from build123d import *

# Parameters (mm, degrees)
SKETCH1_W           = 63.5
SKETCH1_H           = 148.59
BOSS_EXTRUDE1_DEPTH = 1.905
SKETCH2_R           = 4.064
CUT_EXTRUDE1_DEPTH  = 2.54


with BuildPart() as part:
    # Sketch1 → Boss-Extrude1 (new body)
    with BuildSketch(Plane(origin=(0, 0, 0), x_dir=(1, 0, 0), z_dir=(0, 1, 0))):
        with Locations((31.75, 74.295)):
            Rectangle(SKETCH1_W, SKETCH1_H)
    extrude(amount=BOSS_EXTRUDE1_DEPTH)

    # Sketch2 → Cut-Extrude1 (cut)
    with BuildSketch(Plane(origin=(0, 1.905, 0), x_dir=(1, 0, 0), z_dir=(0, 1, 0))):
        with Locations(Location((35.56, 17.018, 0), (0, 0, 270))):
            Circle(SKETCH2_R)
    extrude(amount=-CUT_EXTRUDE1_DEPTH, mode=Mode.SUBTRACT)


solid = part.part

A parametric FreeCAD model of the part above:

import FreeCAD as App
import Part
import Sketcher

V = App.Vector
Q = App.Units.Quantity

doc = App.newDocument("Part")
body = doc.addObject("PartDesign::Body", "Body")

# Sketch on XZ plane
sketch1 = body.newObject("Sketcher::SketchObject", "Sketch")
sketch1.AttachmentSupport = (doc.getObject("XZ_Plane"), [""])
sketch1.MapMode = "FlatFace"
sketch1.addGeometry(Part.LineSegment(V(0, -149, 0), V(0, 0, 0)), False)
sketch1.addGeometry(Part.LineSegment(V(0, 0, 0), V(64, 0, 0)), False)
sketch1.addGeometry(Part.LineSegment(V(64, 0, 0), V(64, -149, 0)), False)
sketch1.addGeometry(Part.LineSegment(V(64, -149, 0), V(0, -149, 0)), False)
sketch1.addConstraint(Sketcher.Constraint("Coincident", 0, 2, 1, 1))
sketch1.addConstraint(Sketcher.Constraint("Coincident", 1, 2, 2, 1))
sketch1.addConstraint(Sketcher.Constraint("Coincident", 2, 2, 3, 1))
sketch1.addConstraint(Sketcher.Constraint("Coincident", 3, 2, 0, 1))
sketch1.addConstraint(Sketcher.Constraint("Vertical", 0))
sketch1.addConstraint(Sketcher.Constraint("Horizontal", 1))
sketch1.addConstraint(Sketcher.Constraint("Vertical", 2))
sketch1.addConstraint(Sketcher.Constraint("Horizontal", 3))
sketch1.addConstraint(Sketcher.Constraint("Coincident", 0, 2, -1, 1))
sketch1.addConstraint(Sketcher.Constraint("DistanceX", 1, 1, 1, 2, Q("2.5 in")))
sketch1.addConstraint(Sketcher.Constraint("DistanceY", 0, 1, 0, 2, Q("5.85 in")))
pad1 = body.newObject("PartDesign::Pad", "Pad")
pad1.Profile = sketch1
pad1.Length = Q("0.075 in")
pad1.Reversed = True

# Sketch on XZ plane
sketch2 = body.newObject("Sketcher::SketchObject", "Sketch001")
sketch2.AttachmentSupport = (doc.getObject("XZ_Plane"), [""])
sketch2.MapMode = "FlatFace"
sketch2.AttachmentOffset = App.Placement(V(0, 0, -0.075 * 25.4), App.Rotation())
sketch2.addGeometry(Part.Circle(V(35.6, -17, 0), V(0, 0, 1), 4.1), False)
sketch2.addConstraint(Sketcher.Constraint("Diameter", 0, Q("0.32 in")))
sketch2.addConstraint(Sketcher.Constraint("DistanceX", -1, 1, 0, 3, Q("1.4 in")))
sketch2.addConstraint(Sketcher.Constraint("DistanceY", 0, 3, -1, 1, Q("0.67 in")))
pocket1 = body.newObject("PartDesign::Pocket", "Pocket")
pocket1.Profile = sketch2
pocket1.Length = Q("0.1 in")
pocket1.Reversed = True

doc.recompute()
